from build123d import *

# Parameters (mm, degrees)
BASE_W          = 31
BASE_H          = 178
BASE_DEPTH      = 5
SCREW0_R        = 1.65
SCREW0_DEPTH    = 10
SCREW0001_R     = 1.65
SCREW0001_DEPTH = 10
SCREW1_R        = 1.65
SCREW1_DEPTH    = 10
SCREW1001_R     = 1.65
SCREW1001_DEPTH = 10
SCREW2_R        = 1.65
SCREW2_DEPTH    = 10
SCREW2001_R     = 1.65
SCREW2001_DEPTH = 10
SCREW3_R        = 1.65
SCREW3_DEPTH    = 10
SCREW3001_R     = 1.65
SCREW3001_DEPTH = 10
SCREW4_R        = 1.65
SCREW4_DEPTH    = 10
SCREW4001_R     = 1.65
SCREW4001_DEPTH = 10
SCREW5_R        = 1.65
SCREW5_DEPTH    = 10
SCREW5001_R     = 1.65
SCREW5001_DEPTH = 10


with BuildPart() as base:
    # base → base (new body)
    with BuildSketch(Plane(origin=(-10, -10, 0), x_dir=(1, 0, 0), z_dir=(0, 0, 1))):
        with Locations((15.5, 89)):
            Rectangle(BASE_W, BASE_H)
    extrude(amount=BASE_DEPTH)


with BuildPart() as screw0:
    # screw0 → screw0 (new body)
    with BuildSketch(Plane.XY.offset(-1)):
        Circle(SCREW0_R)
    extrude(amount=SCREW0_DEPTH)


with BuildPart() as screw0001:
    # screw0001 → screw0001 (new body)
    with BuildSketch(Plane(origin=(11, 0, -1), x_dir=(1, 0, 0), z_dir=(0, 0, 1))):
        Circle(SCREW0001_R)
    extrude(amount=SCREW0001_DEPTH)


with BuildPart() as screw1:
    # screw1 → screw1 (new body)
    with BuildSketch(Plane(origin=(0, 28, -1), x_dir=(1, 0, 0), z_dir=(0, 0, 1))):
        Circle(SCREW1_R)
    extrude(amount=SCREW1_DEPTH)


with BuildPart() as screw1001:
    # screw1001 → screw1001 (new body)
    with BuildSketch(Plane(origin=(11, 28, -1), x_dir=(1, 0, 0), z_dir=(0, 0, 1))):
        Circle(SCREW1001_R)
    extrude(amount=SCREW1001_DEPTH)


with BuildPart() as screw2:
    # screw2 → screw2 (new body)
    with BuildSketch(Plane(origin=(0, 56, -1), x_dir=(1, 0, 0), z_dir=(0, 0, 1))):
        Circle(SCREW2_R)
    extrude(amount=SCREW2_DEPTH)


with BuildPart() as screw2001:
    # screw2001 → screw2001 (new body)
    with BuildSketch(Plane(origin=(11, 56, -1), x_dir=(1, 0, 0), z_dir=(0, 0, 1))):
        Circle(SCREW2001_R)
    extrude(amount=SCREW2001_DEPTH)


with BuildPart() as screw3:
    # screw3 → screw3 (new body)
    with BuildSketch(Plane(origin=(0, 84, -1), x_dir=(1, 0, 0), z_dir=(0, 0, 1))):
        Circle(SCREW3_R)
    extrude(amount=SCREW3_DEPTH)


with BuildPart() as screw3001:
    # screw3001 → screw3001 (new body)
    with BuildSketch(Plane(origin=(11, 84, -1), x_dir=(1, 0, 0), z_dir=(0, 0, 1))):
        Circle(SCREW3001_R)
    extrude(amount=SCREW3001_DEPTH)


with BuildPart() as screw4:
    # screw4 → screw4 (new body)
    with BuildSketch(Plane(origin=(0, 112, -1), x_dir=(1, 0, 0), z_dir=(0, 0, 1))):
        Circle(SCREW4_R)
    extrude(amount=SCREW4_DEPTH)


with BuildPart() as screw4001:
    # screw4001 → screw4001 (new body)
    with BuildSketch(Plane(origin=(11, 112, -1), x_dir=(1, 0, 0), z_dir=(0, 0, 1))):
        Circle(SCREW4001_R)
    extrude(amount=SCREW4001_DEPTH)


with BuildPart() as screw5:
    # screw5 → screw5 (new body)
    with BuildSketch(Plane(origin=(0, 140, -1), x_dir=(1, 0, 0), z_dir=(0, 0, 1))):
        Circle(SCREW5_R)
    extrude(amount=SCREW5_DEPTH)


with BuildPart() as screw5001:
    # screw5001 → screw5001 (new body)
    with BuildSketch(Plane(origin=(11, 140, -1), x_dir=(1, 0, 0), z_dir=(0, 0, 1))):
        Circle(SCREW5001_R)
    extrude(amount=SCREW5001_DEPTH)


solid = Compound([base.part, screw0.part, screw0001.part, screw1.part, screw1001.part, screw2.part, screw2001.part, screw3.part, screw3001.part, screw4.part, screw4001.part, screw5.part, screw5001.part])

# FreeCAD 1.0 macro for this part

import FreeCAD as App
import Part
import Sketcher
from FreeCAD import Vector
Q = App.Units.Quantity


def add_polygon(sketch, points):
    """Adds a closed chain of lines whose ends are joined by coincident constraints."""
    first, n = sketch.GeometryCount, len(points)
    for a, b in zip(points, points[1:] + points[:1]):
        sketch.addGeometry(Part.LineSegment(App.Vector(*a, 0), App.Vector(*b, 0)), False)
    for i in range(n):
        sketch.addConstraint(Sketcher.Constraint("Coincident", first + i, 2, first + (i + 1) % n, 1))

doc = App.newDocument("Part")
body = doc.addObject("PartDesign::Body", "Body")

# Sketch on XY plane
sketch1 = body.newObject("Sketcher::SketchObject", "Sketch")
sketch1.AttachmentSupport = (doc.getObject("XY_Plane"), [""])
sketch1.MapMode = "FlatFace"
add_polygon(sketch1, [(-10, 168), (-10, -10), (21, -10), (21, 168)])  # lines 0-3
sketch1.addConstraint(Sketcher.Constraint("Vertical", 0))
sketch1.addConstraint(Sketcher.Constraint("Horizontal", 1))
sketch1.addConstraint(Sketcher.Constraint("Vertical", 2))
sketch1.addConstraint(Sketcher.Constraint("Horizontal", 3))
sketch1.addConstraint(Sketcher.Constraint("DistanceX", 1, 1, 1, 2, Q("31 mm")))
sketch1.addConstraint(Sketcher.Constraint("DistanceY", 0, 2, 0, 1, Q("178 mm")))
sketch1.addConstraint(Sketcher.Constraint("DistanceX", 0, 2, -1, 1, Q("10 mm")))
sketch1.addConstraint(Sketcher.Constraint("DistanceY", 0, 2, -1, 1, Q("10 mm")))
pad1 = body.newObject("PartDesign::Pad", "Pad")
pad1.Profile = sketch1
pad1.Length = 5
body2 = doc.addObject("PartDesign::Body", "Body001")

# Sketch on XY plane
sketch2 = body2.newObject("Sketcher::SketchObject", "Sketch001")
sketch2.AttachmentSupport = (doc.getObject("XY_Plane001"), [""])
sketch2.MapMode = "FlatFace"
sketch2.AttachmentOffset = App.Placement(Vector(0, 0, -1), App.Rotation())
sketch2.addGeometry(Part.Circle(Vector(0, 0, 0), Vector(0, 0, 1), 1.6), False)
sketch2.addConstraint(Sketcher.Constraint("Coincident", 0, 3, -1, 1))
sketch2.addConstraint(Sketcher.Constraint("Diameter", 0, Q("3.3 mm")))
pad2 = body2.newObject("PartDesign::Pad", "Pad001")
pad2.Profile = sketch2
pad2.Length = 10
body3 = doc.addObject("PartDesign::Body", "Body002")

# Sketch on XY plane
sketch3 = body3.newObject("Sketcher::SketchObject", "Sketch002")
sketch3.AttachmentSupport = (doc.getObject("XY_Plane002"), [""])
sketch3.MapMode = "FlatFace"
sketch3.AttachmentOffset = App.Placement(Vector(0, 0, -1), App.Rotation())
sketch3.addGeometry(Part.Circle(Vector(11, 0, 0), Vector(0, 0, 1), 1.6), False)
sketch3.addConstraint(Sketcher.Constraint("PointOnObject", 0, 3, -1))
sketch3.addConstraint(Sketcher.Constraint("Diameter", 0, Q("3.3 mm")))
sketch3.addConstraint(Sketcher.Constraint("DistanceX", -1, 1, 0, 3, Q("11 mm")))
pad3 = body3.newObject("PartDesign::Pad", "Pad002")
pad3.Profile = sketch3
pad3.Length = 10
body4 = doc.addObject("PartDesign::Body", "Body003")

# Sketch on XY plane
sketch4 = body4.newObject("Sketcher::SketchObject", "Sketch003")
sketch4.AttachmentSupport = (doc.getObject("XY_Plane003"), [""])
sketch4.MapMode = "FlatFace"
sketch4.AttachmentOffset = App.Placement(Vector(0, 0, -1), App.Rotation())
sketch4.addGeometry(Part.Circle(Vector(0, 28, 0), Vector(0, 0, 1), 1.6), False)
sketch4.addConstraint(Sketcher.Constraint("PointOnObject", 0, 3, -2))
sketch4.addConstraint(Sketcher.Constraint("Diameter", 0, Q("3.3 mm")))
sketch4.addConstraint(Sketcher.Constraint("DistanceY", -1, 1, 0, 3, Q("28 mm")))
pad4 = body4.newObject("PartDesign::Pad", "Pad003")
pad4.Profile = sketch4
pad4.Length = 10
body5 = doc.addObject("PartDesign::Body", "Body004")

# Sketch on XY plane
sketch5 = body5.newObject("Sketcher::SketchObject", "Sketch004")
sketch5.AttachmentSupport = (doc.getObject("XY_Plane004"), [""])
sketch5.MapMode = "FlatFace"
sketch5.AttachmentOffset = App.Placement(Vector(0, 0, -1), App.Rotation())
sketch5.addGeometry(Part.Circle(Vector(11, 28, 0), Vector(0, 0, 1), 1.6), False)
sketch5.addConstraint(Sketcher.Constraint("Diameter", 0, Q("3.3 mm")))
sketch5.addConstraint(Sketcher.Constraint("DistanceX", -1, 1, 0, 3, Q("11 mm")))
sketch5.addConstraint(Sketcher.Constraint("DistanceY", -1, 1, 0, 3, Q("28 mm")))
pad5 = body5.newObject("PartDesign::Pad", "Pad004")
pad5.Profile = sketch5
pad5.Length = 10
body6 = doc.addObject("PartDesign::Body", "Body005")

# Sketch on XY plane
sketch6 = body6.newObject("Sketcher::SketchObject", "Sketch005")
sketch6.AttachmentSupport = (doc.getObject("XY_Plane005"), [""])
sketch6.MapMode = "FlatFace"
sketch6.AttachmentOffset = App.Placement(Vector(0, 0, -1), App.Rotation())
sketch6.addGeometry(Part.Circle(Vector(0, 56, 0), Vector(0, 0, 1), 1.6), False)
sketch6.addConstraint(Sketcher.Constraint("PointOnObject", 0, 3, -2))
sketch6.addConstraint(Sketcher.Constraint("Diameter", 0, Q("3.3 mm")))
sketch6.addConstraint(Sketcher.Constraint("DistanceY", -1, 1, 0, 3, Q("56 mm")))
pad6 = body6.newObject("PartDesign::Pad", "Pad005")
pad6.Profile = sketch6
pad6.Length = 10
body7 = doc.addObject("PartDesign::Body", "Body006")

# Sketch on XY plane
sketch7 = body7.newObject("Sketcher::SketchObject", "Sketch006")
sketch7.AttachmentSupport = (doc.getObject("XY_Plane006"), [""])
sketch7.MapMode = "FlatFace"
sketch7.AttachmentOffset = App.Placement(Vector(0, 0, -1), App.Rotation())
sketch7.addGeometry(Part.Circle(Vector(11, 56, 0), Vector(0, 0, 1), 1.6), False)
sketch7.addConstraint(Sketcher.Constraint("Diameter", 0, Q("3.3 mm")))
sketch7.addConstraint(Sketcher.Constraint("DistanceX", -1, 1, 0, 3, Q("11 mm")))
sketch7.addConstraint(Sketcher.Constraint("DistanceY", -1, 1, 0, 3, Q("56 mm")))
pad7 = body7.newObject("PartDesign::Pad", "Pad006")
pad7.Profile = sketch7
pad7.Length = 10
body8 = doc.addObject("PartDesign::Body", "Body007")

# Sketch on XY plane
sketch8 = body8.newObject("Sketcher::SketchObject", "Sketch007")
sketch8.AttachmentSupport = (doc.getObject("XY_Plane007"), [""])
sketch8.MapMode = "FlatFace"
sketch8.AttachmentOffset = App.Placement(Vector(0, 0, -1), App.Rotation())
sketch8.addGeometry(Part.Circle(Vector(0, 84, 0), Vector(0, 0, 1), 1.6), False)
sketch8.addConstraint(Sketcher.Constraint("PointOnObject", 0, 3, -2))
sketch8.addConstraint(Sketcher.Constraint("Diameter", 0, Q("3.3 mm")))
sketch8.addConstraint(Sketcher.Constraint("DistanceY", -1, 1, 0, 3, Q("84 mm")))
pad8 = body8.newObject("PartDesign::Pad", "Pad007")
pad8.Profile = sketch8
pad8.Length = 10
body9 = doc.addObject("PartDesign::Body", "Body008")

# Sketch on XY plane
sketch9 = body9.newObject("Sketcher::SketchObject", "Sketch008")
sketch9.AttachmentSupport = (doc.getObject("XY_Plane008"), [""])
sketch9.MapMode = "FlatFace"
sketch9.AttachmentOffset = App.Placement(Vector(0, 0, -1), App.Rotation())
sketch9.addGeometry(Part.Circle(Vector(11, 84, 0), Vector(0, 0, 1), 1.6), False)
sketch9.addConstraint(Sketcher.Constraint("Diameter", 0, Q("3.3 mm")))
sketch9.addConstraint(Sketcher.Constraint("DistanceX", -1, 1, 0, 3, Q("11 mm")))
sketch9.addConstraint(Sketcher.Constraint("DistanceY", -1, 1, 0, 3, Q("84 mm")))
pad9 = body9.newObject("PartDesign::Pad", "Pad008")
pad9.Profile = sketch9
pad9.Length = 10
body10 = doc.addObject("PartDesign::Body", "Body009")

# Sketch on XY plane
sketch10 = body10.newObject("Sketcher::SketchObject", "Sketch009")
sketch10.AttachmentSupport = (doc.getObject("XY_Plane009"), [""])
sketch10.MapMode = "FlatFace"
sketch10.AttachmentOffset = App.Placement(Vector(0, 0, -1), App.Rotation())
sketch10.addGeometry(Part.Circle(Vector(0, 112, 0), Vector(0, 0, 1), 1.6), False)
sketch10.addConstraint(Sketcher.Constraint("PointOnObject", 0, 3, -2))
sketch10.addConstraint(Sketcher.Constraint("Diameter", 0, Q("3.3 mm")))
sketch10.addConstraint(Sketcher.Constraint("DistanceY", -1, 1, 0, 3, Q("112 mm")))
pad10 = body10.newObject("PartDesign::Pad", "Pad009")
pad10.Profile = sketch10
pad10.Length = 10
body11 = doc.addObject("PartDesign::Body", "Body010")

# Sketch on XY plane
sketch11 = body11.newObject("Sketcher::SketchObject", "Sketch010")
sketch11.AttachmentSupport = (doc.getObject("XY_Plane010"), [""])
sketch11.MapMode = "FlatFace"
sketch11.AttachmentOffset = App.Placement(Vector(0, 0, -1), App.Rotation())
sketch11.addGeometry(Part.Circle(Vector(11, 112, 0), Vector(0, 0, 1), 1.6), False)
sketch11.addConstraint(Sketcher.Constraint("Diameter", 0, Q("3.3 mm")))
sketch11.addConstraint(Sketcher.Constraint("DistanceX", -1, 1, 0, 3, Q("11 mm")))
sketch11.addConstraint(Sketcher.Constraint("DistanceY", -1, 1, 0, 3, Q("112 mm")))
pad11 = body11.newObject("PartDesign::Pad", "Pad010")
pad11.Profile = sketch11
pad11.Length = 10
body12 = doc.addObject("PartDesign::Body", "Body011")

# Sketch on XY plane
sketch12 = body12.newObject("Sketcher::SketchObject", "Sketch011")
sketch12.AttachmentSupport = (doc.getObject("XY_Plane011"), [""])
sketch12.MapMode = "FlatFace"
sketch12.AttachmentOffset = App.Placement(Vector(0, 0, -1), App.Rotation())
sketch12.addGeometry(Part.Circle(Vector(0, 140, 0), Vector(0, 0, 1), 1.6), False)
sketch12.addConstraint(Sketcher.Constraint("PointOnObject", 0, 3, -2))
sketch12.addConstraint(Sketcher.Constraint("Diameter", 0, Q("3.3 mm")))
sketch12.addConstraint(Sketcher.Constraint("DistanceY", -1, 1, 0, 3, Q("140 mm")))
pad12 = body12.newObject("PartDesign::Pad", "Pad011")
pad12.Profile = sketch12
pad12.Length = 10
body13 = doc.addObject("PartDesign::Body", "Body012")

# Sketch on XY plane
sketch13 = body13.newObject("Sketcher::SketchObject", "Sketch012")
sketch13.AttachmentSupport = (doc.getObject("XY_Plane012"), [""])
sketch13.MapMode = "FlatFace"
sketch13.AttachmentOffset = App.Placement(Vector(0, 0, -1), App.Rotation())
sketch13.addGeometry(Part.Circle(Vector(11, 140, 0), Vector(0, 0, 1), 1.6), False)
sketch13.addConstraint(Sketcher.Constraint("Diameter", 0, Q("3.3 mm")))
sketch13.addConstraint(Sketcher.Constraint("DistanceX", -1, 1, 0, 3, Q("11 mm")))
sketch13.addConstraint(Sketcher.Constraint("DistanceY", -1, 1, 0, 3, Q("140 mm")))
pad13 = body13.newObject("PartDesign::Pad", "Pad012")
pad13.Profile = sketch13
pad13.Length = 10

doc.recompute()
